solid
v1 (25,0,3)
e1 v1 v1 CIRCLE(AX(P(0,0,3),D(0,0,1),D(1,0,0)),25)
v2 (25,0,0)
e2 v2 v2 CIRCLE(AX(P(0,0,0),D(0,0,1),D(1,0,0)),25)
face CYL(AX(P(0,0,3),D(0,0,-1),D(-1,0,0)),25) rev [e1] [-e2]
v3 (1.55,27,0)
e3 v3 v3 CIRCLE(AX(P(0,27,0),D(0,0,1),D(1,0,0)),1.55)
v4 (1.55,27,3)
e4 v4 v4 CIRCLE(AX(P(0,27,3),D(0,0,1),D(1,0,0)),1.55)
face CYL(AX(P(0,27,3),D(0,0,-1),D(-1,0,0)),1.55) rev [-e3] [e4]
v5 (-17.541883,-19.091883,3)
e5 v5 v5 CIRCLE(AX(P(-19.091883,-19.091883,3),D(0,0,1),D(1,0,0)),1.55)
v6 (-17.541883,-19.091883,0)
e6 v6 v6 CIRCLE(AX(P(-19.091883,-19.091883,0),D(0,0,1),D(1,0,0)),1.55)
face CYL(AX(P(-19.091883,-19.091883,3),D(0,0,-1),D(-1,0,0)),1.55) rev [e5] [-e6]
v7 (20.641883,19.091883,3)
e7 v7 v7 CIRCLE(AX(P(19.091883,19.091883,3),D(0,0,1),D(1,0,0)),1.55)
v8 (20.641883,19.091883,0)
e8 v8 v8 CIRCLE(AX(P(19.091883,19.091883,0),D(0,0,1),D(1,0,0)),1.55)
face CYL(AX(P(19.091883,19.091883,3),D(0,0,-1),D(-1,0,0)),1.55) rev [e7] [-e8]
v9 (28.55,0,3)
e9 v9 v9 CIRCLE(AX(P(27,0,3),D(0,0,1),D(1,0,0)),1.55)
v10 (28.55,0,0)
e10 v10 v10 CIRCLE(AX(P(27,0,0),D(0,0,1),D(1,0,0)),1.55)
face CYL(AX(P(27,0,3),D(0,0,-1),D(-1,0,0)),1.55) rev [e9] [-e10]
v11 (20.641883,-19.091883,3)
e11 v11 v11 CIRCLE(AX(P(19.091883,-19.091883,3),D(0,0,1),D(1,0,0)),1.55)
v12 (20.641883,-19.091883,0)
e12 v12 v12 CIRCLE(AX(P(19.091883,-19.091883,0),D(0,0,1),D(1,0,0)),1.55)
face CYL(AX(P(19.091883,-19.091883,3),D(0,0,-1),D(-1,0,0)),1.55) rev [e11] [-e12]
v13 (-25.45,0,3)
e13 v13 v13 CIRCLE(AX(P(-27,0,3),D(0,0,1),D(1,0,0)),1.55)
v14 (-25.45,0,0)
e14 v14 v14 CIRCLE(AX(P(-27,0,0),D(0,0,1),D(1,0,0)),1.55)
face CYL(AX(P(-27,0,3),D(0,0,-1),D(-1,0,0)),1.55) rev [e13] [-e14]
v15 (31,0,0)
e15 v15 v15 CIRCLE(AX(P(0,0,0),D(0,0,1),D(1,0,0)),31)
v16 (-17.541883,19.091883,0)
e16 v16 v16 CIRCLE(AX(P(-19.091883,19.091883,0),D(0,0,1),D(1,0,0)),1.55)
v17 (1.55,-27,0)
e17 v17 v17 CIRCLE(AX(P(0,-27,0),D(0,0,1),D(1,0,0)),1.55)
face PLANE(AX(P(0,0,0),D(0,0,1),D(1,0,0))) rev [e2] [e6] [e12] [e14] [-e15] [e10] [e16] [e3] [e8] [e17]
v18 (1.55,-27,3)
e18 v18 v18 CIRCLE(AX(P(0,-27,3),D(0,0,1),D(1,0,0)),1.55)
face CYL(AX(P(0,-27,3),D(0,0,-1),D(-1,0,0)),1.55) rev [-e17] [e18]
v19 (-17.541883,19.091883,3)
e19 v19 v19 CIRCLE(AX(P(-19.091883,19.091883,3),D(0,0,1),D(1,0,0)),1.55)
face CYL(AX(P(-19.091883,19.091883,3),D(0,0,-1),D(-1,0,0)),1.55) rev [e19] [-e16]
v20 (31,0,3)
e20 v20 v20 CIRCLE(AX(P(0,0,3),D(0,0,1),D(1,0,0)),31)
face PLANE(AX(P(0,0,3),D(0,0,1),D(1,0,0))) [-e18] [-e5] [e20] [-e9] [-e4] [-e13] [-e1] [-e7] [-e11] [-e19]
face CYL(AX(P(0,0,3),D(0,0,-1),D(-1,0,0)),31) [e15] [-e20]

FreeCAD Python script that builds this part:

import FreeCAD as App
import Part
import Sketcher
from FreeCAD import Vector

doc = App.newDocument("Part")
body = doc.addObject("PartDesign::Body", "Body")

sketch1 = body.newObject("Sketcher::SketchObject", "Sketch")
sketch1.AttachmentSupport = (doc.getObject("XY_Plane"), [""])
sketch1.MapMode = "FlatFace"
sketch1.addGeometry([
    Part.Circle(Vector(0, 0, 0), Vector(0, 0, 1), 31),
    Part.Circle(Vector(-19.1, -19.1, 0), Vector(0, 0, 1), 1.6),
    Part.Circle(Vector(0, -27, 0), Vector(0, 0, 1), 1.6),
    Part.Circle(Vector(19.1, -19.1, 0), Vector(0, 0, 1), 1.6),
    Part.Circle(Vector(-27, 0, 0), Vector(0, 0, 1), 1.6),
    Part.Circle(Vector(-19.1, 19.1, 0), Vector(0, 0, 1), 1.6),
    Part.Circle(Vector(0, 0, 0), Vector(0, 0, 1), 25),
    Part.Circle(Vector(27, 0, 0), Vector(0, 0, 1), 1.6),
    Part.Circle(Vector(0, 27, 0), Vector(0, 0, 1), 1.6),
    Part.Circle(Vector(19.1, 19.1, 0), Vector(0, 0, 1), 1.6),
], False)
sketch1.addConstraint([
    Sketcher.Constraint("Coincident", 0, 3, -1, 1),
    Sketcher.Constraint("Coincident", 6, 3, -1, 1),
    Sketcher.Constraint("Equal", 1, 2),
    Sketcher.Constraint("Equal", 2, 3),
    Sketcher.Constraint("Equal", 3, 4),
    Sketcher.Constraint("Equal", 4, 5),
    Sketcher.Constraint("Equal", 5, 7),
    Sketcher.Constraint("Equal", 7, 8),
    Sketcher.Constraint("Equal", 8, 9),
    Sketcher.Constraint("Symmetric", 3, 3, 5, 3, -1, 1),
    Sketcher.Constraint("Symmetric", 4, 3, 7, 3, -1, 1),
    Sketcher.Constraint("Symmetric", 2, 3, 8, 3, -1, 1),
    Sketcher.Constraint("Symmetric", 1, 3, 9, 3, -1, 1),
    Sketcher.Constraint("Symmetric", 1, 3, 3, 3, -2),
    Sketcher.Constraint("PointOnObject", 2, 3, -2),
    Sketcher.Constraint("PointOnObject", 4, 3, -1),
    Sketcher.Constraint("Diameter", 0, 62.0),
    Sketcher.Constraint("Diameter", 6, 50.0),
    Sketcher.Constraint("Diameter", 1, 3.1),
    Sketcher.Constraint("DistanceY", 2, 3, -1, 1, 27.0),
    Sketcher.Constraint("DistanceX", 4, 3, -1, 1, 27.0),
    Sketcher.Constraint("DistanceX", 1, 3, -1, 1, 19.091883),
    Sketcher.Constraint("DistanceY", 1, 3, -1, 1, 19.091883),
])
pad1 = body.newObject("PartDesign::Pad", "Pad")
pad1.Profile = sketch1
pad1.Length = 3

doc.recompute()
